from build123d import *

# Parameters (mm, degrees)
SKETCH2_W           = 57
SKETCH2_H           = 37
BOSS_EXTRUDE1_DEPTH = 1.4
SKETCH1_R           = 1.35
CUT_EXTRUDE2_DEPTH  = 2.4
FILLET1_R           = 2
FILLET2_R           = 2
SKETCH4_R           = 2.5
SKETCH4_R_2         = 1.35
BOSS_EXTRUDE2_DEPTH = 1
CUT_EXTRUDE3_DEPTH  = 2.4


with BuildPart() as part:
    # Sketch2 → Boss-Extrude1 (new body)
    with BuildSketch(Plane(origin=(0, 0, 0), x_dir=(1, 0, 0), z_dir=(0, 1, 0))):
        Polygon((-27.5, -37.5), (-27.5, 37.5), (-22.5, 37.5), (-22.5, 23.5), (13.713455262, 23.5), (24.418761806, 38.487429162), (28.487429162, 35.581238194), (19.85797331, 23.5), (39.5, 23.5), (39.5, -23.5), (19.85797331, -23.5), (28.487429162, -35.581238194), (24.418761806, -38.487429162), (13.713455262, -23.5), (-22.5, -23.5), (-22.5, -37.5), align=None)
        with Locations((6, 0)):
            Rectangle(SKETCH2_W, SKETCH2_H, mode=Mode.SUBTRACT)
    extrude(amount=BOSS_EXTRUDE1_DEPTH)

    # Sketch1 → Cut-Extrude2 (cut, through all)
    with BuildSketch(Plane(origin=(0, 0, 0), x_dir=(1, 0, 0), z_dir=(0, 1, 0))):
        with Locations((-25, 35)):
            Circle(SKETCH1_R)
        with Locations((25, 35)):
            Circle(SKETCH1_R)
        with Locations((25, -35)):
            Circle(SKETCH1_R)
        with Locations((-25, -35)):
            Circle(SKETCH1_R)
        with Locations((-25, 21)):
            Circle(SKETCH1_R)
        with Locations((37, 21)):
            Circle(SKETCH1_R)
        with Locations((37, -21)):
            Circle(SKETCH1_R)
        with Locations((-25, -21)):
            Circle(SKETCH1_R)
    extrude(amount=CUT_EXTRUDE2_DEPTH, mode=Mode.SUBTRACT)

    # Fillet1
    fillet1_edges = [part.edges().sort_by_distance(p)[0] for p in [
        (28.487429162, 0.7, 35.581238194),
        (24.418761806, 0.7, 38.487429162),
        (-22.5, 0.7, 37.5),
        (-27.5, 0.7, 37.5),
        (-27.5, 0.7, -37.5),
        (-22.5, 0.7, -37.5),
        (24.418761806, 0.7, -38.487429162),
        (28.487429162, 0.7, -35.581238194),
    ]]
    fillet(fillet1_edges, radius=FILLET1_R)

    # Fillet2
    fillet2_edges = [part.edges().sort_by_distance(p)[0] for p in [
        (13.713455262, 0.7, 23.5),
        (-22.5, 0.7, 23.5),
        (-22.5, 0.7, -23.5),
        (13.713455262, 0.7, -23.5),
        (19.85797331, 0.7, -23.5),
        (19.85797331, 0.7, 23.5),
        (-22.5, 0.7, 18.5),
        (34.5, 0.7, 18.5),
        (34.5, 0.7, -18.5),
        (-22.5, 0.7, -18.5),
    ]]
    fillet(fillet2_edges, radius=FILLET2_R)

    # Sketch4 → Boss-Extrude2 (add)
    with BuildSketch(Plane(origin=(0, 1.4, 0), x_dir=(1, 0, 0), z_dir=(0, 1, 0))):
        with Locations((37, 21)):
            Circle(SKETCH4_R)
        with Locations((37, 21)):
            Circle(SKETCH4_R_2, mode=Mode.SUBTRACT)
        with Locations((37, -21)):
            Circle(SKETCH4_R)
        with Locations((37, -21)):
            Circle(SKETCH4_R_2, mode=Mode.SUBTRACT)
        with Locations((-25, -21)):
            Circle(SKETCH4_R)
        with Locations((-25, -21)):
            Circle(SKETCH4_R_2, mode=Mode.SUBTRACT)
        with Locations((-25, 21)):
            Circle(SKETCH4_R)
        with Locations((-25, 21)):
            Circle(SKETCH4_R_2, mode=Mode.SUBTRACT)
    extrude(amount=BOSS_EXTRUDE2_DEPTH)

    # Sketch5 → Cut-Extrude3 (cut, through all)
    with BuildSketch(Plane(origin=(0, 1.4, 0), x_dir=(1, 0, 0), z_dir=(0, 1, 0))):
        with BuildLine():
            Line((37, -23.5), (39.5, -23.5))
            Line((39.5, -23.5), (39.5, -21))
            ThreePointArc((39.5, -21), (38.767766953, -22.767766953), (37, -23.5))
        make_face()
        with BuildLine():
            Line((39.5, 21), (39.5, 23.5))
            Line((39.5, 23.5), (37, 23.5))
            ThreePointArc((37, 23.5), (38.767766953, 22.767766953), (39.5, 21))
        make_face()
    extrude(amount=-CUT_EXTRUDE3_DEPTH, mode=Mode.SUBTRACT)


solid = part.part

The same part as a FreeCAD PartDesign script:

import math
import FreeCAD as App
import Part
import Sketcher
from FreeCAD import Vector


def edges_at(feature, points):
    """Names of the edges that pass closest to the given points."""
    edges = feature.Shape.Edges
    near = lambda p: min(range(len(edges)), key=lambda i: edges[i].distToShape(Part.Vertex(*p))[0])
    return sorted({f"Edge{near(p) + 1}" for p in points})

doc = App.newDocument("Part")
body = doc.addObject("PartDesign::Body", "Body")

sketch1 = body.newObject("Sketcher::SketchObject", "Sketch")
sketch1.AttachmentSupport = (doc.getObject("XZ_Plane"), [""])
sketch1.MapMode = "FlatFace"
sketch1.addGeometry(Part.LineSegment(Vector(-27.5, -37.5, 0), Vector(-27.5, 37.5, 0)), False)
sketch1.addGeometry(Part.LineSegment(Vector(-27.5, 37.5, 0), Vector(-22.5, 37.5, 0)), False)
sketch1.addGeometry(Part.LineSegment(Vector(-22.5, 37.5, 0), Vector(-22.5, 23.5, 0)), False)
sketch1.addGeometry(Part.LineSegment(Vector(-22.5, 23.5, 0), Vector(13.7, 23.5, 0)), False)
sketch1.addGeometry(Part.LineSegment(Vector(13.7, 23.5, 0), Vector(24.4, 38.5, 0)), False)
sketch1.addGeometry(Part.LineSegment(Vector(24.4, 38.5, 0), Vector(28.5, 35.6, 0)), False)
sketch1.addGeometry(Part.LineSegment(Vector(28.5, 35.6, 0), Vector(19.9, 23.5, 0)), False)
sketch1.addGeometry(Part.LineSegment(Vector(19.9, 23.5, 0), Vector(39.5, 23.5, 0)), False)
sketch1.addGeometry(Part.LineSegment(Vector(39.5, 23.5, 0), Vector(39.5, -23.5, 0)), False)
sketch1.addGeometry(Part.LineSegment(Vector(39.5, -23.5, 0), Vector(19.9, -23.5, 0)), False)
sketch1.addGeometry(Part.LineSegment(Vector(19.9, -23.5, 0), Vector(28.5, -35.6, 0)), False)
sketch1.addGeometry(Part.LineSegment(Vector(28.5, -35.6, 0), Vector(24.4, -38.5, 0)), False)
sketch1.addGeometry(Part.LineSegment(Vector(24.4, -38.5, 0), Vector(13.7, -23.5, 0)), False)
sketch1.addGeometry(Part.LineSegment(Vector(13.7, -23.5, 0), Vector(-22.5, -23.5, 0)), False)
sketch1.addGeometry(Part.LineSegment(Vector(-22.5, -23.5, 0), Vector(-22.5, -37.5, 0)), False)
sketch1.addGeometry(Part.LineSegment(Vector(-22.5, -37.5, 0), Vector(-27.5, -37.5, 0)), False)
sketch1.addGeometry(Part.LineSegment(Vector(-22.5, 18.5, 0), Vector(-22.5, -18.5, 0)), False)
sketch1.addGeometry(Part.LineSegment(Vector(-22.5, -18.5, 0), Vector(34.5, -18.5, 0)), False)
sketch1.addGeometry(Part.LineSegment(Vector(34.5, -18.5, 0), Vector(34.5, 18.5, 0)), False)
sketch1.addGeometry(Part.LineSegment(Vector(34.5, 18.5, 0), Vector(-22.5, 18.5, 0)), False)
sketch1.addConstraint(Sketcher.Constraint("Coincident", 0, 2, 1, 1))
sketch1.addConstraint(Sketcher.Constraint("Coincident", 1, 2, 2, 1))
sketch1.addConstraint(Sketcher.Constraint("Coincident", 2, 2, 3, 1))
sketch1.addConstraint(Sketcher.Constraint("Coincident", 3, 2, 4, 1))
sketch1.addConstraint(Sketcher.Constraint("Coincident", 4, 2, 5, 1))
sketch1.addConstraint(Sketcher.Constraint("Coincident", 5, 2, 6, 1))
sketch1.addConstraint(Sketcher.Constraint("Coincident", 6, 2, 7, 1))
sketch1.addConstraint(Sketcher.Constraint("Coincident", 7, 2, 8, 1))
sketch1.addConstraint(Sketcher.Constraint("Coincident", 8, 2, 9, 1))
sketch1.addConstraint(Sketcher.Constraint("Coincident", 9, 2, 10, 1))
sketch1.addConstraint(Sketcher.Constraint("Coincident", 10, 2, 11, 1))
sketch1.addConstraint(Sketcher.Constraint("Coincident", 11, 2, 12, 1))
sketch1.addConstraint(Sketcher.Constraint("Coincident", 12, 2, 13, 1))
sketch1.addConstraint(Sketcher.Constraint("Coincident", 13, 2, 14, 1))
sketch1.addConstraint(Sketcher.Constraint("Coincident", 14, 2, 15, 1))
sketch1.addConstraint(Sketcher.Constraint("Coincident", 15, 2, 0, 1))
sketch1.addConstraint(Sketcher.Constraint("Coincident", 16, 2, 17, 1))
sketch1.addConstraint(Sketcher.Constraint("Coincident", 17, 2, 18, 1))
sketch1.addConstraint(Sketcher.Constraint("Coincident", 18, 2, 19, 1))
sketch1.addConstraint(Sketcher.Constraint("Coincident", 19, 2, 16, 1))
sketch1.addConstraint(Sketcher.Constraint("Vertical", 0))
sketch1.addConstraint(Sketcher.Constraint("Horizontal", 1))
sketch1.addConstraint(Sketcher.Constraint("Vertical", 2))
sketch1.addConstraint(Sketcher.Constraint("Horizontal", 3))
sketch1.addConstraint(Sketcher.Constraint("Horizontal", 7))
sketch1.addConstraint(Sketcher.Constraint("Vertical", 8))
sketch1.addConstraint(Sketcher.Constraint("Horizontal", 9))
sketch1.addConstraint(Sketcher.Constraint("Horizontal", 13))
sketch1.addConstraint(Sketcher.Constraint("Vertical", 14))
sketch1.addConstraint(Sketcher.Constraint("Horizontal", 15))
sketch1.addConstraint(Sketcher.Constraint("Vertical", 16))
sketch1.addConstraint(Sketcher.Constraint("Horizontal", 17))
sketch1.addConstraint(Sketcher.Constraint("Vertical", 18))
sketch1.addConstraint(Sketcher.Constraint("Horizontal", 19))
sketch1.addConstraint(Sketcher.Constraint("Symmetric", 6, 2, 9, 2, -1))
sketch1.addConstraint(Sketcher.Constraint("Symmetric", 5, 2, 10, 2, -1))
sketch1.addConstraint(Sketcher.Constraint("Symmetric", 4, 2, 11, 2, -1))
sketch1.addConstraint(Sketcher.Constraint("Symmetric", 3, 2, 12, 2, -1))
sketch1.addConstraint(Sketcher.Constraint("Symmetric", 1, 2, 14, 2, -1))
sketch1.addConstraint(Sketcher.Constraint("Perpendicular", 4, 5))
sketch1.addConstraint(Sketcher.Constraint("Perpendicular", 5, 6))
sketch1.addConstraint(Sketcher.Constraint("Horizontal", 3, 2, 6, 2))
sketch1.addConstraint(Sketcher.Constraint("Vertical", 14, 2, 16, 2))
sketch1.addConstraint(Sketcher.Constraint("DistanceX", 1, 1, 1, 2, 5.0))
sketch1.addConstraint(Sketcher.Constraint("DistanceX", 17, 1, 17, 2, 57.0))
sketch1.addConstraint(Sketcher.Constraint("DistanceY", 0, 1, 0, 2, 75.0))
sketch1.addConstraint(Sketcher.Constraint("DistanceY", 2, 2, 2, 1, 14.0))
sketch1.addConstraint(Sketcher.Constraint("DistanceY", 16, 2, 16, 1, 37.0))
sketch1.addConstraint(Sketcher.Constraint("Distance", 5, 5.0))
sketch1.addConstraint(Sketcher.Constraint("DistanceX", 2, 2, 7, 2, 62.0))
sketch1.addConstraint(Sketcher.Constraint("DistanceY", 13, 2, 16, 2, 5.0))
sketch1.addConstraint(Sketcher.Constraint("DistanceX", 0, 2, -1, 1, 27.5))
sketch1.addConstraint(Sketcher.Constraint("DistanceX", 3, 1, 3, 2, 36.213455))
sketch1.addConstraint(Sketcher.Constraint("DistanceX", 7, 1, 7, 2, 19.642027))
sketch1.addConstraint(Sketcher.Constraint("DistanceX", -1, 1, 4, 2, 24.418762))
pad1 = body.newObject("PartDesign::Pad", "Pad")
pad1.Profile = sketch1
pad1.Length = 1.4
pad1.Reversed = True

sketch2 = body.newObject("Sketcher::SketchObject", "Sketch001")
sketch2.AttachmentSupport = (doc.getObject("XZ_Plane"), [""])
sketch2.MapMode = "FlatFace"
sketch2.addGeometry(Part.Circle(Vector(-25, -35, 0), Vector(0, 0, 1), 1.4), False)
sketch2.addGeometry(Part.Circle(Vector(25, -35, 0), Vector(0, 0, 1), 1.4), False)
sketch2.addGeometry(Part.Circle(Vector(25, 35, 0), Vector(0, 0, 1), 1.4), False)
sketch2.addGeometry(Part.Circle(Vector(-25, 35, 0), Vector(0, 0, 1), 1.4), False)
sketch2.addGeometry(Part.Circle(Vector(-25, -21, 0), Vector(0, 0, 1), 1.4), False)
sketch2.addGeometry(Part.Circle(Vector(37, -21, 0), Vector(0, 0, 1), 1.4), False)
sketch2.addGeometry(Part.Circle(Vector(37, 21, 0), Vector(0, 0, 1), 1.4), False)
sketch2.addGeometry(Part.Circle(Vector(-25, 21, 0), Vector(0, 0, 1), 1.4), False)
sketch2.addConstraint(Sketcher.Constraint("Equal", 0, 1))
sketch2.addConstraint(Sketcher.Constraint("Equal", 1, 2))
sketch2.addConstraint(Sketcher.Constraint("Equal", 2, 3))
sketch2.addConstraint(Sketcher.Constraint("Equal", 3, 4))
sketch2.addConstraint(Sketcher.Constraint("Equal", 4, 5))
sketch2.addConstraint(Sketcher.Constraint("Equal", 5, 6))
sketch2.addConstraint(Sketcher.Constraint("Equal", 6, 7))
sketch2.addConstraint(Sketcher.Constraint("Symmetric", 0, 3, 2, 3, -1, 1))
sketch2.addConstraint(Sketcher.Constraint("Symmetric", 1, 3, 3, 3, -1, 1))
sketch2.addConstraint(Sketcher.Constraint("Symmetric", 0, 3, 1, 3, -2))
sketch2.addConstraint(Sketcher.Constraint("Symmetric", 5, 3, 6, 3, -1))
sketch2.addConstraint(Sketcher.Constraint("Symmetric", 4, 3, 7, 3, -1))
sketch2.addConstraint(Sketcher.Constraint("Horizontal", 4, 3, 5, 3))
sketch2.addConstraint(Sketcher.Constraint("Vertical", 3, 3, 4, 3))
sketch2.addConstraint(Sketcher.Constraint("Diameter", 0, 2.7))
sketch2.addConstraint(Sketcher.Constraint("DistanceX", 0, 3, -1, 1, 25.0))
sketch2.addConstraint(Sketcher.Constraint("DistanceY", 0, 3, -1, 1, 35.0))
sketch2.addConstraint(Sketcher.Constraint("DistanceY", 4, 3, -1, 1, 21.0))
sketch2.addConstraint(Sketcher.Constraint("DistanceX", -1, 1, 5, 3, 37.0))
pocket1 = body.newObject("PartDesign::Pocket", "Pocket")
pocket1.Profile = sketch2
pocket1.Type = "ThroughAll"
doc.recompute()

fillet = body.newObject("PartDesign::Fillet", "Fillet")
fillet.Base = (pocket1, edges_at(pocket1, [
    (28.487, 0.7, 35.581),
    (24.419, 0.7, 38.487),
    (-22.5, 0.7, 37.5),
    (-27.5, 0.7, 37.5),
    (-27.5, 0.7, -37.5),
    (-22.5, 0.7, -37.5),
    (24.419, 0.7, -38.487),
    (28.487, 0.7, -35.581),
]))
fillet.Radius = 2
doc.recompute()

fillet2 = body.newObject("PartDesign::Fillet", "Fillet001")
fillet2.Base = (fillet, edges_at(fillet, [
    (13.713, 0.7, 23.5),
    (-22.5, 0.7, 23.5),
    (-22.5, 0.7, -23.5),
    (13.713, 0.7, -23.5),
    (19.858, 0.7, -23.5),
    (19.858, 0.7, 23.5),
    (-22.5, 0.7, 18.5),
    (34.5, 0.7, 18.5),
    (34.5, 0.7, -18.5),
    (-22.5, 0.7, -18.5),
]))
fillet2.Radius = 2

sketch3 = body.newObject("Sketcher::SketchObject", "Sketch002")
sketch3.AttachmentSupport = (doc.getObject("XZ_Plane"), [""])
sketch3.MapMode = "FlatFace"
sketch3.AttachmentOffset = App.Placement(Vector(0, 0, -1.4), App.Rotation())
sketch3.addGeometry(Part.Circle(Vector(37, -21, 0), Vector(0, 0, 1), 2.5), False)
sketch3.addGeometry(Part.Circle(Vector(37, -21, 0), Vector(0, 0, 1), 1.4), False)
sketch3.addGeometry(Part.Circle(Vector(37, 21, 0), Vector(0, 0, 1), 2.5), False)
sketch3.addGeometry(Part.Circle(Vector(37, 21, 0), Vector(0, 0, 1), 1.4), False)
sketch3.addGeometry(Part.Circle(Vector(-25, 21, 0), Vector(0, 0, 1), 2.5), False)
sketch3.addGeometry(Part.Circle(Vector(-25, 21, 0), Vector(0, 0, 1), 1.4), False)
sketch3.addGeometry(Part.Circle(Vector(-25, -21, 0), Vector(0, 0, 1), 2.5), False)
sketch3.addGeometry(Part.Circle(Vector(-25, -21, 0), Vector(0, 0, 1), 1.4), False)
sketch3.addConstraint(Sketcher.Constraint("Coincident", 1, 3, 0, 3))
sketch3.addConstraint(Sketcher.Constraint("Coincident", 3, 3, 2, 3))
sketch3.addConstraint(Sketcher.Constraint("Coincident", 5, 3, 4, 3))
sketch3.addConstraint(Sketcher.Constraint("Coincident", 7, 3, 6, 3))
sketch3.addConstraint(Sketcher.Constraint("Equal", 0, 2))
sketch3.addConstraint(Sketcher.Constraint("Equal", 1, 3))
sketch3.addConstraint(Sketcher.Constraint("Equal", 2, 4))
sketch3.addConstraint(Sketcher.Constraint("Equal", 3, 5))
sketch3.addConstraint(Sketcher.Constraint("Equal", 4, 6))
sketch3.addConstraint(Sketcher.Constraint("Equal", 5, 7))
sketch3.addConstraint(Sketcher.Constraint("Symmetric", 0, 3, 2, 3, -1))
sketch3.addConstraint(Sketcher.Constraint("Symmetric", 4, 3, 6, 3, -1))
sketch3.addConstraint(Sketcher.Constraint("Horizontal", 3, 3, 4, 3))
sketch3.addConstraint(Sketcher.Constraint("Diameter", 0, 5.0))
sketch3.addConstraint(Sketcher.Constraint("Diameter", 1, 2.7))
sketch3.addConstraint(Sketcher.Constraint("DistanceX", -1, 1, 0, 3, 37.0))
sketch3.addConstraint(Sketcher.Constraint("DistanceY", 0, 3, -1, 1, 21.0))
sketch3.addConstraint(Sketcher.Constraint("DistanceX", 4, 3, -1, 1, 25.0))
pad2 = body.newObject("PartDesign::Pad", "Pad001")
pad2.Profile = sketch3
pad2.Length = 1
pad2.Reversed = True

sketch4 = body.newObject("Sketcher::SketchObject", "Sketch003")
sketch4.AttachmentSupport = (doc.getObject("XZ_Plane"), [""])
sketch4.MapMode = "FlatFace"
sketch4.AttachmentOffset = App.Placement(Vector(0, 0, -1.4), App.Rotation())
sketch4.addGeometry(Part.LineSegment(Vector(37, 23.5, 0), Vector(39.5, 23.5, 0)), False)
sketch4.addGeometry(Part.LineSegment(Vector(39.5, 23.5, 0), Vector(39.5, 21, 0)), False)
sketch4.addGeometry(Part.ArcOfCircle(Part.Circle(Vector(37, 21, 0), Vector(0, 0, 1), 2.5), math.radians(0), math.radians(90)), False)
sketch4.addGeometry(Part.LineSegment(Vector(39.5, -21, 0), Vector(39.5, -23.5, 0)), False)
sketch4.addGeometry(Part.LineSegment(Vector(39.5, -23.5, 0), Vector(37, -23.5, 0)), False)
sketch4.addGeometry(Part.ArcOfCircle(Part.Circle(Vector(37, -21, 0), Vector(0, 0, 1), 2.5), math.radians(-90), math.radians(0)), False)
sketch4.addConstraint(Sketcher.Constraint("Coincident", 0, 2, 1, 1))
sketch4.addConstraint(Sketcher.Constraint("Tangent", 1, 2, 2, 1))
sketch4.addConstraint(Sketcher.Constraint("Tangent", 2, 2, 0, 1))
sketch4.addConstraint(Sketcher.Constraint("Coincident", 3, 2, 4, 1))
sketch4.addConstraint(Sketcher.Constraint("Tangent", 4, 2, 5, 1))
sketch4.addConstraint(Sketcher.Constraint("Tangent", 5, 2, 3, 1))
sketch4.addConstraint(Sketcher.Constraint("Horizontal", 0))
sketch4.addConstraint(Sketcher.Constraint("Vertical", 1))
sketch4.addConstraint(Sketcher.Constraint("Vertical", 3))
sketch4.addConstraint(Sketcher.Constraint("Horizontal", 4))
sketch4.addConstraint(Sketcher.Constraint("Equal", 2, 5))
sketch4.addConstraint(Sketcher.Constraint("Symmetric", 2, 3, 5, 3, -1))
sketch4.addConstraint(Sketcher.Constraint("Radius", 2, 2.5))
sketch4.addConstraint(Sketcher.Constraint("DistanceX", -1, 1, 2, 3, 37.0))
sketch4.addConstraint(Sketcher.Constraint("DistanceY", -1, 1, 2, 3, 21.0))
pocket2 = body.newObject("PartDesign::Pocket", "Pocket001")
pocket2.Profile = sketch4
pocket2.Type = "ThroughAll"
pocket2.Reversed = True

doc.recompute()
